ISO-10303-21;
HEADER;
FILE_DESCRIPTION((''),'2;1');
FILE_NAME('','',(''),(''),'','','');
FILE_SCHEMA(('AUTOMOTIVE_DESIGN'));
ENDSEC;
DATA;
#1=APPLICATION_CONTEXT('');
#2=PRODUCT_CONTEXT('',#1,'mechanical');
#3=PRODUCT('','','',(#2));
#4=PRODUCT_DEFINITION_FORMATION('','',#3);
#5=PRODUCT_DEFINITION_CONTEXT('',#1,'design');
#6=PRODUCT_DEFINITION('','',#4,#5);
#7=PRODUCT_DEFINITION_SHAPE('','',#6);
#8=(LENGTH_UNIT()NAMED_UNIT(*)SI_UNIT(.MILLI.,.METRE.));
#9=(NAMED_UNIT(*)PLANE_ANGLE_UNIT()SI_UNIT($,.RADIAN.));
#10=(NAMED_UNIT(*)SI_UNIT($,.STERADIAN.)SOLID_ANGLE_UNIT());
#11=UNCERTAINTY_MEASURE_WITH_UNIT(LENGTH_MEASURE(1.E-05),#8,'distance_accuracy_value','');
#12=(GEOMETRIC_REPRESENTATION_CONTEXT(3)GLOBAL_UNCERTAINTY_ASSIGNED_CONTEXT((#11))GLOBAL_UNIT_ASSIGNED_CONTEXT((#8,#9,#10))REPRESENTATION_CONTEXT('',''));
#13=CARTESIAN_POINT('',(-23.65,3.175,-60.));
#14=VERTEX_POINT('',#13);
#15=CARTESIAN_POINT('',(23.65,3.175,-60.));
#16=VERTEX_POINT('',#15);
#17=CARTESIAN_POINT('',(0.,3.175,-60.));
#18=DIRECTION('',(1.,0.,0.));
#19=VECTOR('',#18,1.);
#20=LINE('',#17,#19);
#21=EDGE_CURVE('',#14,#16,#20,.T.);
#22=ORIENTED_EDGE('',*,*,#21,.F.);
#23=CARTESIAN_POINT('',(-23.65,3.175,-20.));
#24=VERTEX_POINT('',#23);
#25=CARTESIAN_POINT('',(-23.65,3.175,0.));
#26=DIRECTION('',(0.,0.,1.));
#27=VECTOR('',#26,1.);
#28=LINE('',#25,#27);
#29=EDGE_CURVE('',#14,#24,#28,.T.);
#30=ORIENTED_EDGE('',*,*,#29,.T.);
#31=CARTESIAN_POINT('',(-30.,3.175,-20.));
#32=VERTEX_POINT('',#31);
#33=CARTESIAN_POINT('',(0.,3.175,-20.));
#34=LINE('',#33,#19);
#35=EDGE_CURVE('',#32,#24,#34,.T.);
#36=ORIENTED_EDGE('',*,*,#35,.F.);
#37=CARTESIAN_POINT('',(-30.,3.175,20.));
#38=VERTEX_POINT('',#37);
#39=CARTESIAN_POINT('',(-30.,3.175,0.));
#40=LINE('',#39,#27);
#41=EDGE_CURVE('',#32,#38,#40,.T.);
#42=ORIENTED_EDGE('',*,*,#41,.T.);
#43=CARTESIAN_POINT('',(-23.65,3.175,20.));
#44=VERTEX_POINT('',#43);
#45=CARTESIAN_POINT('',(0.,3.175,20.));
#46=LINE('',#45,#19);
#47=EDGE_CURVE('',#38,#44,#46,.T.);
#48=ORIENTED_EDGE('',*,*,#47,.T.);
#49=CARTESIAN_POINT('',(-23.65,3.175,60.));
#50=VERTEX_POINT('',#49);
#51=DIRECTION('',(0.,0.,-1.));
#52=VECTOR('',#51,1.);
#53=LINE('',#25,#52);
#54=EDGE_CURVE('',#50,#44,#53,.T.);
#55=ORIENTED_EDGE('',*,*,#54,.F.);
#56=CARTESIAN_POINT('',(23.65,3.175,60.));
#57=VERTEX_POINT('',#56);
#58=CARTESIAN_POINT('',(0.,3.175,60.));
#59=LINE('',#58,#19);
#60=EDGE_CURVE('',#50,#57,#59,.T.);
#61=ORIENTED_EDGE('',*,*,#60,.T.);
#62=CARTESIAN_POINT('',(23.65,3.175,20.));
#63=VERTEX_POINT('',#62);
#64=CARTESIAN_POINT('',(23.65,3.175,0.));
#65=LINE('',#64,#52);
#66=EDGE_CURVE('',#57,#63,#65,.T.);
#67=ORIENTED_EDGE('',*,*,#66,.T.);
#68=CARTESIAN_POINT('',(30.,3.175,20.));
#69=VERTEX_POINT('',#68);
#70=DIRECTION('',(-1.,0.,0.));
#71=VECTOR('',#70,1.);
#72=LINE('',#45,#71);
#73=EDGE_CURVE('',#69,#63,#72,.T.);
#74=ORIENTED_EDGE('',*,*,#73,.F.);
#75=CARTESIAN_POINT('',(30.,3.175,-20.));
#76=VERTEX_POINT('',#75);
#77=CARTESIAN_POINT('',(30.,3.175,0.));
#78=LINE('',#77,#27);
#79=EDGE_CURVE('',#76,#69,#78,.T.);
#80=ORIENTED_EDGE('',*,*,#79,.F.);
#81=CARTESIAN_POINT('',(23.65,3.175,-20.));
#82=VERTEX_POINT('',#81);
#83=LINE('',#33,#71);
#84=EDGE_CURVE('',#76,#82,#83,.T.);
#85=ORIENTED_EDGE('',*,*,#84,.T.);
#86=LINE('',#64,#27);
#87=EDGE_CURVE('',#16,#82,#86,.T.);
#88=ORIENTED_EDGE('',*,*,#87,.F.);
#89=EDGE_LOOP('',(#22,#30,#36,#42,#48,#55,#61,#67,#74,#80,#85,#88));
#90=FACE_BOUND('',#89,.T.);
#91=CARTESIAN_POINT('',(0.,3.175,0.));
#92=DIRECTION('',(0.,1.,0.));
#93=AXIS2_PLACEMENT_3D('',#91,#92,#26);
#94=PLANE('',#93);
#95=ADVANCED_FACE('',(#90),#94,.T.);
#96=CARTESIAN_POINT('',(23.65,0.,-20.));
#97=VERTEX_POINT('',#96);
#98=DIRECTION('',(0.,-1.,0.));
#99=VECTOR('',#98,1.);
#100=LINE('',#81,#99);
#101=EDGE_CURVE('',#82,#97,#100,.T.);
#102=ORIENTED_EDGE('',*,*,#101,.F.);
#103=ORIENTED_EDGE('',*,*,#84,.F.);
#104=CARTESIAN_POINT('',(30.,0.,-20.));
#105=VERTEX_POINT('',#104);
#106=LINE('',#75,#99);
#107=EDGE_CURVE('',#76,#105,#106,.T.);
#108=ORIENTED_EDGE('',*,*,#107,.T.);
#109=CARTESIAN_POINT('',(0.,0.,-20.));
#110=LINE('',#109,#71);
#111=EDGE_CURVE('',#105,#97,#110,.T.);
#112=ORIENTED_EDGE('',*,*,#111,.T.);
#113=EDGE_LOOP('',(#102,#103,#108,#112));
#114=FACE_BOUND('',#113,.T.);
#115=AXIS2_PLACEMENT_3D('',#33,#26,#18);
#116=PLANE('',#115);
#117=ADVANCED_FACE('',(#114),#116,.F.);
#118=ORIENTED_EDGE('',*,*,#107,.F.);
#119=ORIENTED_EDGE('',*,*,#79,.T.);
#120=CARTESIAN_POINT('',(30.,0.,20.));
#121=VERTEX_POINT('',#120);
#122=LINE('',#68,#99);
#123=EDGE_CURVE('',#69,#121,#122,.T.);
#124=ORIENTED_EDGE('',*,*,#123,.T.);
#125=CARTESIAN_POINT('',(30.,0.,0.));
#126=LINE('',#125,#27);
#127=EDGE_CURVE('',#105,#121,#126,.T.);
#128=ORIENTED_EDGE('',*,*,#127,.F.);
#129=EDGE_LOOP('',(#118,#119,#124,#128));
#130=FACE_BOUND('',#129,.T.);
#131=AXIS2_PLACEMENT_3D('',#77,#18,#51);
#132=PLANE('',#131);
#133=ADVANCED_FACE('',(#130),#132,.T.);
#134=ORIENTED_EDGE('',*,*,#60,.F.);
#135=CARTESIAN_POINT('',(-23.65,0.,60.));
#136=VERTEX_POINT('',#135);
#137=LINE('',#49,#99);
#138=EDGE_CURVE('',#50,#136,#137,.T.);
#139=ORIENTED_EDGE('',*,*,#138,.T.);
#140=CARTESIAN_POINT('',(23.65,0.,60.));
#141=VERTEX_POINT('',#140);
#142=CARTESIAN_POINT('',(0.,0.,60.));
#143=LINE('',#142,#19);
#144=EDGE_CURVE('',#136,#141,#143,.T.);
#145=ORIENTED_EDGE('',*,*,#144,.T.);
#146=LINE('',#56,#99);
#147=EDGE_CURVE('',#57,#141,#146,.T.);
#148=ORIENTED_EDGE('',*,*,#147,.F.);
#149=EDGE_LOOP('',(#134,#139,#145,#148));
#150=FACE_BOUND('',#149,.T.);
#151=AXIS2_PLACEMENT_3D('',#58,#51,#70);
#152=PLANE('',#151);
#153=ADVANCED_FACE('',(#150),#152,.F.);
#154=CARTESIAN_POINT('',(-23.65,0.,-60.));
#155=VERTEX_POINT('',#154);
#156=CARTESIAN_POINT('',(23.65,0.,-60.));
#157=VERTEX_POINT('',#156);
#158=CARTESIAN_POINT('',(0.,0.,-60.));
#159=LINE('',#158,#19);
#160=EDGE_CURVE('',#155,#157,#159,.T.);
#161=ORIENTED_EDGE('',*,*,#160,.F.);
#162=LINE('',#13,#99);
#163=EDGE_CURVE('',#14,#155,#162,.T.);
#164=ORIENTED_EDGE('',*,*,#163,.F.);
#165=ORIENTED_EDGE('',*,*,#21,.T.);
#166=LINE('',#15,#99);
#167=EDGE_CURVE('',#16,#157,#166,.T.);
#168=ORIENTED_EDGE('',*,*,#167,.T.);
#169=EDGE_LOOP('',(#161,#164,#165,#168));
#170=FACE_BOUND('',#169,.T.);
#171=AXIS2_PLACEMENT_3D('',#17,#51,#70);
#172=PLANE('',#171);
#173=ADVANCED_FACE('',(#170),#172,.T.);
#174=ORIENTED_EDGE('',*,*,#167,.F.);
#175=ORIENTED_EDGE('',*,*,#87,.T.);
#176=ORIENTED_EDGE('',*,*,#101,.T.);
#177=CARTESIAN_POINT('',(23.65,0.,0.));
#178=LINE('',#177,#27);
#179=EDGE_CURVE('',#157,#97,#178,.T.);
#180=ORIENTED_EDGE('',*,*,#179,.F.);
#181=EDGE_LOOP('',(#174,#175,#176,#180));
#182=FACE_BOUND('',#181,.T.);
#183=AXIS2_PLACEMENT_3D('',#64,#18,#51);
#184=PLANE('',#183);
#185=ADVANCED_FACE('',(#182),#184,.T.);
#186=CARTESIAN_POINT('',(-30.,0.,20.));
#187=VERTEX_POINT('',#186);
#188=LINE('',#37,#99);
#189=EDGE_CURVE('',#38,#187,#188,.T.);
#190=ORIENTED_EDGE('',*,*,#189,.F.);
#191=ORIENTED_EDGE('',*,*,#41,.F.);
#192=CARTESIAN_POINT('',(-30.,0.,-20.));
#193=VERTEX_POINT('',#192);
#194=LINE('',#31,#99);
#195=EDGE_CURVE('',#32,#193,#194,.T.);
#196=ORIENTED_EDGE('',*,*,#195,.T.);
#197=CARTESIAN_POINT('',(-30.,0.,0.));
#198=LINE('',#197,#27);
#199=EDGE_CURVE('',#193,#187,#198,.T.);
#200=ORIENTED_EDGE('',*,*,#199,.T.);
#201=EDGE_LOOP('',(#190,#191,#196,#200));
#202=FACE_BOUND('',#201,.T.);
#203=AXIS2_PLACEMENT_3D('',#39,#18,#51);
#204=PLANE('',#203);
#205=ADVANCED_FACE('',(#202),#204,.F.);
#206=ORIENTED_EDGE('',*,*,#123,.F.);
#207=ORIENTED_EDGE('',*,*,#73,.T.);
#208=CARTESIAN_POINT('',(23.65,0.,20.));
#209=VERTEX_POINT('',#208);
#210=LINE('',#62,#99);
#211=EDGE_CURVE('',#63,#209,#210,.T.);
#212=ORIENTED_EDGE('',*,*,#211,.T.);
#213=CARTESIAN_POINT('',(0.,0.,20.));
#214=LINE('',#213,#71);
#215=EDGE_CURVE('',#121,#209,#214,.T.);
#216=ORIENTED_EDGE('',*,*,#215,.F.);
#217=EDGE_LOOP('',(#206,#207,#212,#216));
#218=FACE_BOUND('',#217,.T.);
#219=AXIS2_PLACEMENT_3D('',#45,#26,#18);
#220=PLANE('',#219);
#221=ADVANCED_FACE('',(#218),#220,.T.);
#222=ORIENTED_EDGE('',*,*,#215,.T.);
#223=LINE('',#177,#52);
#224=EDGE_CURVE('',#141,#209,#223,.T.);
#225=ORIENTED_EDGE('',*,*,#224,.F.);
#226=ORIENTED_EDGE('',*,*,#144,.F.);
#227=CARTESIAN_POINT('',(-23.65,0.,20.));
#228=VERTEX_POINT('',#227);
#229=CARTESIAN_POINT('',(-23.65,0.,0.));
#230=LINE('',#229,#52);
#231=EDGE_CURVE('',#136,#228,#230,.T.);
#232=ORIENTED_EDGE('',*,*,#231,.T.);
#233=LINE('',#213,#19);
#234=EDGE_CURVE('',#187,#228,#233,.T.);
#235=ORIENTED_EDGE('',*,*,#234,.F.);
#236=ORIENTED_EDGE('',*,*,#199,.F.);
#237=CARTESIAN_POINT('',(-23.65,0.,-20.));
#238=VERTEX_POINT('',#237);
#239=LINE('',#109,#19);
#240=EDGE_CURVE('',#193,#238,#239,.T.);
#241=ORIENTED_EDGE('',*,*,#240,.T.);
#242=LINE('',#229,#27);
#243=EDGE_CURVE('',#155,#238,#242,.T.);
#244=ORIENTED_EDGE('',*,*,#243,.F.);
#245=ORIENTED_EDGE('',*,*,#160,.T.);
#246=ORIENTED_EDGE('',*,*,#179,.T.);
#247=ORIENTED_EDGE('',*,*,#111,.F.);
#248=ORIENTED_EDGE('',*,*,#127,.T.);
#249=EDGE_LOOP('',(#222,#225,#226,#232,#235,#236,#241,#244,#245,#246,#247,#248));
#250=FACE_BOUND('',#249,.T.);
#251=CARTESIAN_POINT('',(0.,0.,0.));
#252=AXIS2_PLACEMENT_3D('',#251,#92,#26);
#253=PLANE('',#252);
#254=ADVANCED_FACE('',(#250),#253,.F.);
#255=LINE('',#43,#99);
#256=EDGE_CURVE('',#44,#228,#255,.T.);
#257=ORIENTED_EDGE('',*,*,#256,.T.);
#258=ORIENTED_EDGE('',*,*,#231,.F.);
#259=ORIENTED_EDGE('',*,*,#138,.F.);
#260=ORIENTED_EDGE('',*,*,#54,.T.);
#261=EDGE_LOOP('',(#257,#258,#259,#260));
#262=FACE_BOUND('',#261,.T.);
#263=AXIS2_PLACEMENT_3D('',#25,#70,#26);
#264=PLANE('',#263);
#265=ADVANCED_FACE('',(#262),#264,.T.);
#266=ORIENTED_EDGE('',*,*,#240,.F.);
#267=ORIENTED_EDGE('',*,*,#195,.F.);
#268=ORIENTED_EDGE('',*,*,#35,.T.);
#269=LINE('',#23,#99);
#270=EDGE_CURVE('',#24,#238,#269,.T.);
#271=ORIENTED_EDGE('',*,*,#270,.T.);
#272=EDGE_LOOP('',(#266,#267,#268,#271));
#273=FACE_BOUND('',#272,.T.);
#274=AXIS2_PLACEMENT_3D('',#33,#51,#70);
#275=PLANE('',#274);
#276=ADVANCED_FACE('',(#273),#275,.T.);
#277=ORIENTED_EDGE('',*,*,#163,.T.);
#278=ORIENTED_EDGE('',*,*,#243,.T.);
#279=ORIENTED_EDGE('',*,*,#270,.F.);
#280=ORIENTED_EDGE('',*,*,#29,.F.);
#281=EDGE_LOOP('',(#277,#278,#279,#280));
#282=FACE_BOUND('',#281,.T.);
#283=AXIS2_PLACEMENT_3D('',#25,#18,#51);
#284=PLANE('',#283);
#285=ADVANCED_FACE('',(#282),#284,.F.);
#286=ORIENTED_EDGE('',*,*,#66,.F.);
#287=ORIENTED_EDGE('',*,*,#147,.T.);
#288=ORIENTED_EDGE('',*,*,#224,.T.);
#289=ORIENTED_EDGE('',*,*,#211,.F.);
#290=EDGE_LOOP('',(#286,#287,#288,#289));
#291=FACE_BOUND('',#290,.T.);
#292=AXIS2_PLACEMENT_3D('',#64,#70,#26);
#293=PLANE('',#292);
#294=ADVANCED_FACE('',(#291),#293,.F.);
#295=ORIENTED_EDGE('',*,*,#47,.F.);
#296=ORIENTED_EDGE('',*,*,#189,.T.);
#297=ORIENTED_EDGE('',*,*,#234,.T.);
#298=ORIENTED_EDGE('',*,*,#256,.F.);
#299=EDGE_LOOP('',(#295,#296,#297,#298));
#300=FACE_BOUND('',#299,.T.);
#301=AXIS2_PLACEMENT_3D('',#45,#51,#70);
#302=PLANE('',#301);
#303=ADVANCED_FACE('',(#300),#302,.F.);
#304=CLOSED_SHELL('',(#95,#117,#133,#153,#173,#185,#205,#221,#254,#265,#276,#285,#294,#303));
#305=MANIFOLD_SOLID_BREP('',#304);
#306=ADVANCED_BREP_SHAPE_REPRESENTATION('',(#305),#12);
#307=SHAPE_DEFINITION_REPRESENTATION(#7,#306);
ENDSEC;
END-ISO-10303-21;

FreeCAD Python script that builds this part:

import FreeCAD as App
import Part
import Sketcher
from FreeCAD import Vector

doc = App.newDocument("Part")
body = doc.addObject("PartDesign::Body", "Body")

sketch1 = body.newObject("Sketcher::SketchObject", "Sketch")
sketch1.AttachmentSupport = (doc.getObject("XZ_Plane"), [""])
sketch1.MapMode = "FlatFace"
sketch1.addGeometry(Part.LineSegment(Vector(24, -60, 0), Vector(-24, -60, 0)), False)
sketch1.addGeometry(Part.LineSegment(Vector(-24, -60, 0), Vector(-24, -20, 0)), False)
sketch1.addGeometry(Part.LineSegment(Vector(-24, -20, 0), Vector(-30, -20, 0)), False)
sketch1.addGeometry(Part.LineSegment(Vector(-30, -20, 0), Vector(-30, 20, 0)), False)
sketch1.addGeometry(Part.LineSegment(Vector(-30, 20, 0), Vector(-24, 20, 0)), False)
sketch1.addGeometry(Part.LineSegment(Vector(-24, 20, 0), Vector(-24, 60, 0)), False)
sketch1.addGeometry(Part.LineSegment(Vector(-24, 60, 0), Vector(24, 60, 0)), False)
sketch1.addGeometry(Part.LineSegment(Vector(24, 60, 0), Vector(24, 20, 0)), False)
sketch1.addGeometry(Part.LineSegment(Vector(24, 20, 0), Vector(30, 20, 0)), False)
sketch1.addGeometry(Part.LineSegment(Vector(30, 20, 0), Vector(30, -20, 0)), False)
sketch1.addGeometry(Part.LineSegment(Vector(30, -20, 0), Vector(24, -20, 0)), False)
sketch1.addGeometry(Part.LineSegment(Vector(24, -20, 0), Vector(24, -60, 0)), False)
sketch1.addConstraint(Sketcher.Constraint("Coincident", 0, 2, 1, 1))
sketch1.addConstraint(Sketcher.Constraint("Coincident", 1, 2, 2, 1))
sketch1.addConstraint(Sketcher.Constraint("Coincident", 2, 2, 3, 1))
sketch1.addConstraint(Sketcher.Constraint("Coincident", 3, 2, 4, 1))
sketch1.addConstraint(Sketcher.Constraint("Coincident", 4, 2, 5, 1))
sketch1.addConstraint(Sketcher.Constraint("Coincident", 5, 2, 6, 1))
sketch1.addConstraint(Sketcher.Constraint("Coincident", 6, 2, 7, 1))
sketch1.addConstraint(Sketcher.Constraint("Coincident", 7, 2, 8, 1))
sketch1.addConstraint(Sketcher.Constraint("Coincident", 8, 2, 9, 1))
sketch1.addConstraint(Sketcher.Constraint("Coincident", 9, 2, 10, 1))
sketch1.addConstraint(Sketcher.Constraint("Coincident", 10, 2, 11, 1))
sketch1.addConstraint(Sketcher.Constraint("Coincident", 11, 2, 0, 1))
sketch1.addConstraint(Sketcher.Constraint("Horizontal", 0))
sketch1.addConstraint(Sketcher.Constraint("Vertical", 1))
sketch1.addConstraint(Sketcher.Constraint("Horizontal", 2))
sketch1.addConstraint(Sketcher.Constraint("Vertical", 3))
sketch1.addConstraint(Sketcher.Constraint("Horizontal", 4))
sketch1.addConstraint(Sketcher.Constraint("Vertical", 5))
sketch1.addConstraint(Sketcher.Constraint("Horizontal", 6))
sketch1.addConstraint(Sketcher.Constraint("Vertical", 7))
sketch1.addConstraint(Sketcher.Constraint("Horizontal", 8))
sketch1.addConstraint(Sketcher.Constraint("Vertical", 9))
sketch1.addConstraint(Sketcher.Constraint("Horizontal", 10))
sketch1.addConstraint(Sketcher.Constraint("Vertical", 11))
sketch1.addConstraint(Sketcher.Constraint("Symmetric", 0, 2, 6, 2, -1, 1))
sketch1.addConstraint(Sketcher.Constraint("Symmetric", 2, 2, 8, 2, -1, 1))
sketch1.addConstraint(Sketcher.Constraint("Symmetric", 4, 2, 10, 2, -1, 1))
sketch1.addConstraint(Sketcher.Constraint("Symmetric", 4, 2, 7, 2, -2))
sketch1.addConstraint(Sketcher.Constraint("Equal", 1, 3))
sketch1.addConstraint(Sketcher.Constraint("DistanceY", 1, 1, 1, 2, 40.0))
sketch1.addConstraint(Sketcher.Constraint("DistanceX", 0, 2, 0, 1, 47.3))
sketch1.addConstraint(Sketcher.Constraint("DistanceX", 2, 2, -1, 1, 30.0))
pad1 = body.newObject("PartDesign::Pad", "Pad")
pad1.Profile = sketch1
pad1.Length = 3.175
pad1.Reversed = True

doc.recompute()
